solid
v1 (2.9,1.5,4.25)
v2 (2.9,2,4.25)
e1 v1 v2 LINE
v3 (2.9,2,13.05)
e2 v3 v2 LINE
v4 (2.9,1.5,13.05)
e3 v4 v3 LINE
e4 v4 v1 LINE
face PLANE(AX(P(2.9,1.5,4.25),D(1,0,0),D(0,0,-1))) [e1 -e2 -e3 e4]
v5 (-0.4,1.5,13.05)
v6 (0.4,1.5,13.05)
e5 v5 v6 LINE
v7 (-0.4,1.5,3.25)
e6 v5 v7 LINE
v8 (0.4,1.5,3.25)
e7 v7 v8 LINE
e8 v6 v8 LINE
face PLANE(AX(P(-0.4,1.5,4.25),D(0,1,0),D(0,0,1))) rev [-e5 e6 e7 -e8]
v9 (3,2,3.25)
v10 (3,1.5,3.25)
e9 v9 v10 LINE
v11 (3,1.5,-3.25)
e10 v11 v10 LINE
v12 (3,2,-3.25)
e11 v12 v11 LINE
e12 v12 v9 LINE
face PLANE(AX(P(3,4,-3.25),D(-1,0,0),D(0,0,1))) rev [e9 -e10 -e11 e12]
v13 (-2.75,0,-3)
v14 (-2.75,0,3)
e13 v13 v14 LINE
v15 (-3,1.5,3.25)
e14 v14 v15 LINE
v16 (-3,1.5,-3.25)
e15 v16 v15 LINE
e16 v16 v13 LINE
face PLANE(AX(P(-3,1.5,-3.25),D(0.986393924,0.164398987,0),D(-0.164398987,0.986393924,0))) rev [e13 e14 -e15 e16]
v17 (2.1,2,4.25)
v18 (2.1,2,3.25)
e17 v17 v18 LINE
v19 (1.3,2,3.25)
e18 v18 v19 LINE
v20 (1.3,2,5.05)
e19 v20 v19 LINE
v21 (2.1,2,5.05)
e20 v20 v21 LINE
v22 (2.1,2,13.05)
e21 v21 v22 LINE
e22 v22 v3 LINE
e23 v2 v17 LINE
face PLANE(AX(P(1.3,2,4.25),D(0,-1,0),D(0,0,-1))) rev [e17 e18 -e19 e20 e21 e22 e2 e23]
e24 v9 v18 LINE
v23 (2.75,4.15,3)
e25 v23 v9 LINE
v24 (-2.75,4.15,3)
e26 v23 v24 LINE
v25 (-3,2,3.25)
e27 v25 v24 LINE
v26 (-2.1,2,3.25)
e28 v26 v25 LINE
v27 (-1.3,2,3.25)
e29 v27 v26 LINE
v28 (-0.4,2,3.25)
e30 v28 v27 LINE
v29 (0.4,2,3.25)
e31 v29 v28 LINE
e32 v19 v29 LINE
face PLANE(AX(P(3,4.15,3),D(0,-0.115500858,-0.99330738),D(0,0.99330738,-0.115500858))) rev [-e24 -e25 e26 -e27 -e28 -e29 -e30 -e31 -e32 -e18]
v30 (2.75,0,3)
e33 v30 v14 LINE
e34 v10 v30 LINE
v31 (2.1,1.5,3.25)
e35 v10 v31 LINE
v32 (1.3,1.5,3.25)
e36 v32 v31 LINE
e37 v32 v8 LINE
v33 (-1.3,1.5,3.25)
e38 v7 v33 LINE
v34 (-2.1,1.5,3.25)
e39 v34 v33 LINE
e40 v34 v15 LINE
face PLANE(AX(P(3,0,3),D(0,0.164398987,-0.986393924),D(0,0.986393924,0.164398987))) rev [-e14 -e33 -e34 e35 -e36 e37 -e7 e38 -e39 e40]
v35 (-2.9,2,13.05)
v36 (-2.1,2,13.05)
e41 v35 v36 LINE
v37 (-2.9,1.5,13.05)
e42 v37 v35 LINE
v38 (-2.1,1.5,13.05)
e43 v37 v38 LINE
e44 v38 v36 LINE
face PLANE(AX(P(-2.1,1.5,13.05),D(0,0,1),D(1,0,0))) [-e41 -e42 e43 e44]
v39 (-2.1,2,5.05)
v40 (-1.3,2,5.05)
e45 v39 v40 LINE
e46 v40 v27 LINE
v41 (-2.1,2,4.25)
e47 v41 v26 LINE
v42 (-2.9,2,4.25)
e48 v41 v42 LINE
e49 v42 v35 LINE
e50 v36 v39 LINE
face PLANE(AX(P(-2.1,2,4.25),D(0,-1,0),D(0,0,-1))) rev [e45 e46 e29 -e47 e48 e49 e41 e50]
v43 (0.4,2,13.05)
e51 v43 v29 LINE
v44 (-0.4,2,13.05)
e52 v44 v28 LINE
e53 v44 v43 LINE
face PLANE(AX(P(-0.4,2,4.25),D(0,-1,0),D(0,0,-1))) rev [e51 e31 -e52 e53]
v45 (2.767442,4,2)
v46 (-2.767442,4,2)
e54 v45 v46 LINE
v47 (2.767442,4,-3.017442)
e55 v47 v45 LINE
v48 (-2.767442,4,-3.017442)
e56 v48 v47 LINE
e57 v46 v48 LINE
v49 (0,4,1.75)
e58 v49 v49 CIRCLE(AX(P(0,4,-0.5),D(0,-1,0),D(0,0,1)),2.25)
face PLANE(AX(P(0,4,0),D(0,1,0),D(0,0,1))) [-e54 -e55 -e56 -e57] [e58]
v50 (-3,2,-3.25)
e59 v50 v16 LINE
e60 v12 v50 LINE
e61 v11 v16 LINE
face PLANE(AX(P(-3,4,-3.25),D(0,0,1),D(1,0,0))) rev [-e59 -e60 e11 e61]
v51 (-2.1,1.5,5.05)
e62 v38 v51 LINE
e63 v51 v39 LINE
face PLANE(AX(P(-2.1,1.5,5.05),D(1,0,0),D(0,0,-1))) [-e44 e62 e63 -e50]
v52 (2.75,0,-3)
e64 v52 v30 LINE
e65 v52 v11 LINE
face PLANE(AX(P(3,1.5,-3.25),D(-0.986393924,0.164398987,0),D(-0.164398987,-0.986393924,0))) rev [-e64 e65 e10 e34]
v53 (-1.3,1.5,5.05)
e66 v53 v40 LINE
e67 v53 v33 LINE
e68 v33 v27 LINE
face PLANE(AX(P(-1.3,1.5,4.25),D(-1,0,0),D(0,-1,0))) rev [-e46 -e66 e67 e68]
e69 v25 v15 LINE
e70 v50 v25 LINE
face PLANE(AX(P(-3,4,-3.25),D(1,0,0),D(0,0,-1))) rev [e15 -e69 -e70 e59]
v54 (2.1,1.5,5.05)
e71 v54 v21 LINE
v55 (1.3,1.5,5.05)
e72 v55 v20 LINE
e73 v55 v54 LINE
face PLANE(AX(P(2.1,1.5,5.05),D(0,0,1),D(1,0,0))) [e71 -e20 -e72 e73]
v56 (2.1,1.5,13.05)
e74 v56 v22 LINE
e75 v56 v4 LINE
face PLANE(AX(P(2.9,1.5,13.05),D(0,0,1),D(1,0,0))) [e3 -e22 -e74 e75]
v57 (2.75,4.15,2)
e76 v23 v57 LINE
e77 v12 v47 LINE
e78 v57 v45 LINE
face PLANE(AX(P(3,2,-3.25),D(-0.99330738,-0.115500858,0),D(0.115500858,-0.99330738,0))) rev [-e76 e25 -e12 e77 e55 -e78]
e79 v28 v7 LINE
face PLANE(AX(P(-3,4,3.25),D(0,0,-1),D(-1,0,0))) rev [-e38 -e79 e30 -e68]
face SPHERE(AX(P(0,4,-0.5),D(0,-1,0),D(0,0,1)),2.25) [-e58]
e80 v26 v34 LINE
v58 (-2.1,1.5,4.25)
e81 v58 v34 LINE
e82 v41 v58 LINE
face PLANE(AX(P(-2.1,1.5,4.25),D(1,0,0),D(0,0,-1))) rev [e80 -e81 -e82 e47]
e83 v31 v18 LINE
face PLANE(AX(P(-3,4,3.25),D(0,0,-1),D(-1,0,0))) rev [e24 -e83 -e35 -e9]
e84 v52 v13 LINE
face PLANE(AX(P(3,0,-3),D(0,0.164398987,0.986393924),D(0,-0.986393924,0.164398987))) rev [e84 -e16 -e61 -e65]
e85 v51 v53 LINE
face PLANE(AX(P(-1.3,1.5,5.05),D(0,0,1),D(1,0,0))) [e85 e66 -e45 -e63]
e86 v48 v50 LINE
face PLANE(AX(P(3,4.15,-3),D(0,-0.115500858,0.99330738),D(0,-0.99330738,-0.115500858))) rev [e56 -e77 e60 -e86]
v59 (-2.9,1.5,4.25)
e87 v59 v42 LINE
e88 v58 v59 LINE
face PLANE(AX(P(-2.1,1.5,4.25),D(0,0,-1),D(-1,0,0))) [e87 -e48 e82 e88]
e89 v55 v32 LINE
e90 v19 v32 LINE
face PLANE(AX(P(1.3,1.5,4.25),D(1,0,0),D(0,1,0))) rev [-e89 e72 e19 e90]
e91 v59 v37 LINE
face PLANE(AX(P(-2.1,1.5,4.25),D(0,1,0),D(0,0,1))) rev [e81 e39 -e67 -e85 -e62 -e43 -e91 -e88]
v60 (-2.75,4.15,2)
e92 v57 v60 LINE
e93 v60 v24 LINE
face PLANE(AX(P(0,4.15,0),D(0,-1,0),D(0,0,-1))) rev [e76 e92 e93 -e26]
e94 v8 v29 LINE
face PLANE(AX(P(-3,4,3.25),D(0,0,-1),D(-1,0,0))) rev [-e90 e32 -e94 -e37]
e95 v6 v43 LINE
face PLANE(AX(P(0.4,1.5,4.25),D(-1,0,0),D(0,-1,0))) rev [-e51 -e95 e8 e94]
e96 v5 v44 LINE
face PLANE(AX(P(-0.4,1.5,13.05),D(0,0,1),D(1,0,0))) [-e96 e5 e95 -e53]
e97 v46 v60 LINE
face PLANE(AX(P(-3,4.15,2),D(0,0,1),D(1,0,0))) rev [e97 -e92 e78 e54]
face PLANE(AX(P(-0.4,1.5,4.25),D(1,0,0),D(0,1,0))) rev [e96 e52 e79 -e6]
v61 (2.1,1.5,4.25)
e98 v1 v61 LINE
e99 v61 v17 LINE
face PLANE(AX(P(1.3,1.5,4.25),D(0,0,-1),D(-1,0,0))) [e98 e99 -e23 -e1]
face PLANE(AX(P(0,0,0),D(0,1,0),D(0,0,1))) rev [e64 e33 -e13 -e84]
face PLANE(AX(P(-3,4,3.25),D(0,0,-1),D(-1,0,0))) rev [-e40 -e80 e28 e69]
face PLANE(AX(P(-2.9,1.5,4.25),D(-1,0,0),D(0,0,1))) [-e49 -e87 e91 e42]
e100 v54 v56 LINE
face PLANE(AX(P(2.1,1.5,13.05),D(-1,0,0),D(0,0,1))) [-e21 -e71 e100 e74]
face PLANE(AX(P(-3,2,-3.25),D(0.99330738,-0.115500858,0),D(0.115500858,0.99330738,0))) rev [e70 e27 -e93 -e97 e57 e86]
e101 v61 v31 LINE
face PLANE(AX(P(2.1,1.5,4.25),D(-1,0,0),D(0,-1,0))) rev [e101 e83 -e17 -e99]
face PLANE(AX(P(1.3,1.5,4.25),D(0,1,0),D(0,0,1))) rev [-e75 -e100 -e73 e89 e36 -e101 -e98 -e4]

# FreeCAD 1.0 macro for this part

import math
import FreeCAD as App
import Part
import Sketcher

V = App.Vector

doc = App.newDocument("Part")
body = doc.addObject("PartDesign::Body", "Body")

# Sketch on XZ plane
sketch1 = body.newObject("Sketcher::SketchObject", "Sketch")
sketch1.AttachmentSupport = (doc.getObject("XZ_Plane"), [""])
sketch1.MapMode = "FlatFace"
sketch1.addGeometry([
    Part.LineSegment(V(-3, -3, 0), V(-3, 3, 0)),
    Part.LineSegment(V(-3, 3, 0), V(3, 3, 0)),
    Part.LineSegment(V(3, 3, 0), V(3, -3, 0)),
    Part.LineSegment(V(3, -3, 0), V(-3, -3, 0)),
], False)
sketch1.addConstraint([
    Sketcher.Constraint("Coincident", 0, 2, 1, 1),
    Sketcher.Constraint("Coincident", 1, 2, 2, 1),
    Sketcher.Constraint("Coincident", 2, 2, 3, 1),
    Sketcher.Constraint("Coincident", 3, 2, 0, 1),
    Sketcher.Constraint("Vertical", 0),
    Sketcher.Constraint("Horizontal", 1),
    Sketcher.Constraint("Vertical", 2),
    Sketcher.Constraint("Horizontal", 3),
    Sketcher.Constraint("Symmetric", 0, 2, 2, 2, -1, 1),
    Sketcher.Constraint("DistanceX", 1, 1, 1, 2, 6.0),
    Sketcher.Constraint("DistanceY", 0, 1, 0, 2, 6.5),
])
pad1 = body.newObject("PartDesign::Pad", "Pad")
pad1.Profile = sketch1
pad1.Length = 4
pad1.Reversed = True

# Sketch on XY plane
sketch2 = body.newObject("Sketcher::SketchObject", "Sketch001")
sketch2.AttachmentSupport = (doc.getObject("XY_Plane"), [""])
sketch2.MapMode = "FlatFace"
sketch2.AttachmentOffset = App.Placement(V(0, 0, 3.25), App.Rotation())
sketch2.addGeometry([
    Part.LineSegment(V(-2.1, 2, 0), V(-2.1, 1.5, 0)),  # 0
    Part.LineSegment(V(-2.1, 1.5, 0), V(-1.3, 1.5, 0)),  # 1
    Part.LineSegment(V(-1.3, 1.5, 0), V(-1.3, 2, 0)),  # 2
    Part.LineSegment(V(-1.3, 2, 0), V(-2.1, 2, 0)),  # 3
    Part.LineSegment(V(-0.4, 2, 0), V(-0.4, 1.5, 0)),  # 4
    Part.LineSegment(V(-0.4, 1.5, 0), V(0.4, 1.5, 0)),  # 5
    Part.LineSegment(V(0.4, 1.5, 0), V(0.4, 2, 0)),  # 6
    Part.LineSegment(V(0.4, 2, 0), V(-0.4, 2, 0)),  # 7
    Part.LineSegment(V(1.3, 2, 0), V(1.3, 1.5, 0)),  # 8
    Part.LineSegment(V(1.3, 1.5, 0), V(2.1, 1.5, 0)),  # 9
    Part.LineSegment(V(2.1, 1.5, 0), V(2.1, 2, 0)),  # 10
    Part.LineSegment(V(2.1, 2, 0), V(1.3, 2, 0)),  # 11
], False)
sketch2.addConstraint([
    Sketcher.Constraint("Coincident", 0, 2, 1, 1),
    Sketcher.Constraint("Coincident", 1, 2, 2, 1),
    Sketcher.Constraint("Coincident", 2, 2, 3, 1),
    Sketcher.Constraint("Coincident", 3, 2, 0, 1),
    Sketcher.Constraint("Coincident", 4, 2, 5, 1),
    Sketcher.Constraint("Coincident", 5, 2, 6, 1),
    Sketcher.Constraint("Coincident", 6, 2, 7, 1),
    Sketcher.Constraint("Coincident", 7, 2, 4, 1),
    Sketcher.Constraint("Coincident", 8, 2, 9, 1),
    Sketcher.Constraint("Coincident", 9, 2, 10, 1),
    Sketcher.Constraint("Coincident", 10, 2, 11, 1),
    Sketcher.Constraint("Coincident", 11, 2, 8, 1),
    Sketcher.Constraint("Vertical", 0),
    Sketcher.Constraint("Horizontal", 1),
    Sketcher.Constraint("Vertical", 2),
    Sketcher.Constraint("Horizontal", 3),
    Sketcher.Constraint("Vertical", 4),
    Sketcher.Constraint("Horizontal", 5),
    Sketcher.Constraint("Vertical", 6),
    Sketcher.Constraint("Horizontal", 7),
    Sketcher.Constraint("Vertical", 8),
    Sketcher.Constraint("Horizontal", 9),
    Sketcher.Constraint("Vertical", 10),
    Sketcher.Constraint("Horizontal", 11),
    Sketcher.Constraint("Symmetric", 1, 2, 8, 2, -2),
    Sketcher.Constraint("Symmetric", 3, 2, 10, 2, -2),
    Sketcher.Constraint("Horizontal", 1, 2, 4, 2),
    Sketcher.Constraint("Horizontal", 3, 2, 6, 2),
    Sketcher.Constraint("Equal", 3, 5),
    Sketcher.Constraint("DistanceX", 1, 1, 1, 2, 0.8),
    Sketcher.Constraint("DistanceY", 0, 2, 0, 1, 0.5),
    Sketcher.Constraint("DistanceY", -1, 1, 2, 2, 2.0),
    Sketcher.Constraint("DistanceX", 0, 2, -1, 1, 2.1),
    Sketcher.Constraint("DistanceX", 4, 2, -1, 1, 0.4),
])
pad2 = body.newObject("PartDesign::Pad", "Pad001")
pad2.Profile = sketch2
pad2.Length = 1

# Sketch on XZ plane
sketch3 = body.newObject("Sketcher::SketchObject", "Sketch002")
sketch3.AttachmentSupport = (doc.getObject("XZ_Plane"), [""])
sketch3.MapMode = "FlatFace"
sketch3.AttachmentOffset = App.Placement(V(0, 0, -2), App.Rotation())
sketch3.addGeometry([
    Part.LineSegment(V(-1.3, 5, 0), V(-1.3, 4.2, 0)),  # 0
    Part.LineSegment(V(-1.3, 4.2, 0), V(-2.9, 4.2, 0)),  # 1
    Part.LineSegment(V(-2.9, 4.2, 0), V(-2.9, 13.1, 0)),  # 2
    Part.LineSegment(V(-2.9, 13.1, 0), V(-2.1, 13.1, 0)),  # 3
    Part.LineSegment(V(-2.1, 13.1, 0), V(-2.1, 5, 0)),  # 4
    Part.LineSegment(V(-2.1, 5, 0), V(-1.3, 5, 0)),  # 5
    Part.LineSegment(V(-0.4, 4.2, 0), V(-0.4, 13.1, 0)),  # 6
    Part.LineSegment(V(-0.4, 13.1, 0), V(0.4, 13.1, 0)),  # 7
    Part.LineSegment(V(0.4, 13.1, 0), V(0.4, 4.2, 0)),  # 8
    Part.LineSegment(V(0.4, 4.2, 0), V(-0.4, 4.2, 0)),  # 9
    Part.LineSegment(V(2.9, 4.2, 0), V(1.3, 4.2, 0)),  # 10
    Part.LineSegment(V(1.3, 4.2, 0), V(1.3, 5, 0)),  # 11
    Part.LineSegment(V(1.3, 5, 0), V(2.1, 5, 0)),  # 12
    Part.LineSegment(V(2.1, 5, 0), V(2.1, 13.1, 0)),  # 13
    Part.LineSegment(V(2.1, 13.1, 0), V(2.9, 13.1, 0)),  # 14
    Part.LineSegment(V(2.9, 13.1, 0), V(2.9, 4.2, 0)),  # 15
], False)
sketch3.addConstraint([
    Sketcher.Constraint("Coincident", 0, 2, 1, 1),
    Sketcher.Constraint("Coincident", 1, 2, 2, 1),
    Sketcher.Constraint("Coincident", 2, 2, 3, 1),
    Sketcher.Constraint("Coincident", 3, 2, 4, 1),
    Sketcher.Constraint("Coincident", 4, 2, 5, 1),
    Sketcher.Constraint("Coincident", 5, 2, 0, 1),
    Sketcher.Constraint("Coincident", 6, 2, 7, 1),
    Sketcher.Constraint("Coincident", 7, 2, 8, 1),
    Sketcher.Constraint("Coincident", 8, 2, 9, 1),
    Sketcher.Constraint("Coincident", 9, 2, 6, 1),
    Sketcher.Constraint("Coincident", 10, 2, 11, 1),
    Sketcher.Constraint("Coincident", 11, 2, 12, 1),
    Sketcher.Constraint("Coincident", 12, 2, 13, 1),
    Sketcher.Constraint("Coincident", 13, 2, 14, 1),
    Sketcher.Constraint("Coincident", 14, 2, 15, 1),
    Sketcher.Constraint("Coincident", 15, 2, 10, 1),
    Sketcher.Constraint("Vertical", 0),
    Sketcher.Constraint("Horizontal", 1),
    Sketcher.Constraint("Vertical", 2),
    Sketcher.Constraint("Horizontal", 3),
    Sketcher.Constraint("Vertical", 4),
    Sketcher.Constraint("Horizontal", 5),
    Sketcher.Constraint("Vertical", 6),
    Sketcher.Constraint("Horizontal", 7),
    Sketcher.Constraint("Vertical", 8),
    Sketcher.Constraint("Horizontal", 9),
    Sketcher.Constraint("Horizontal", 10),
    Sketcher.Constraint("Vertical", 11),
    Sketcher.Constraint("Horizontal", 12),
    Sketcher.Constraint("Vertical", 13),
    Sketcher.Constraint("Horizontal", 14),
    Sketcher.Constraint("Vertical", 15),
    Sketcher.Constraint("Symmetric", 0, 2, 10, 2, -2),
    Sketcher.Constraint("Symmetric", 4, 2, 12, 2, -2),
    Sketcher.Constraint("Symmetric", 2, 2, 14, 2, -2),
    Sketcher.Constraint("Horizontal", 3, 2, 6, 2),
    Sketcher.Constraint("Horizontal", 1, 2, 8, 2),
    Sketcher.Constraint("Equal", 3, 5),
    Sketcher.Constraint("Equal", 5, 7),
    Sketcher.Constraint("Equal", 14, 0),
    Sketcher.Constraint("DistanceY", 4, 2, 4, 1, 8.0),
    Sketcher.Constraint("DistanceX", 1, 2, 1, 1, 1.6),
    Sketcher.Constraint("DistanceX", 2, 2, 13, 2, 5.0),
    Sketcher.Constraint("DistanceX", 6, 2, -1, 1, 0.4),
    Sketcher.Constraint("DistanceY", -1, 1, 0, 2, 4.25),
])
pad3 = body.newObject("PartDesign::Pad", "Pad002")
pad3.Profile = sketch3
pad3.Length = 0.5

# Sketch on XZ plane
sketch4 = body.newObject("Sketcher::SketchObject", "Sketch003")
sketch4.AttachmentSupport = (doc.getObject("XZ_Plane"), [""])
sketch4.MapMode = "FlatFace"
sketch4.AttachmentOffset = App.Placement(V(0, 0, -4), App.Rotation())
sketch4.addGeometry([
    Part.LineSegment(V(0, 1.8, 0), V(0, -2.8, 0)),
    Part.ArcOfCircle(Part.Circle(V(0, -0.5, 0), V(0, 0, 1), 2.2), math.radians(90), math.radians(270)),
], False)
sketch4.addConstraint([
    Sketcher.Constraint("Coincident", 0, 1, 1, 1),
    Sketcher.Constraint("Coincident", 1, 2, 0, 2),
    Sketcher.Constraint("Vertical", 0),
    Sketcher.Constraint("PointOnObject", 1, 3, -2),
    Sketcher.Constraint("PointOnObject", 0, 1, -2),
    Sketcher.Constraint("Radius", 1, 2.25),
    Sketcher.Constraint("DistanceY", 1, 3, -1, 1, 0.5),
])
revolution = body.newObject("PartDesign::Revolution", "Revolution")
revolution.Profile = sketch4
revolution.ReferenceAxis = (sketch4, ["V_Axis"])
revolution.Angle = 180
revolution.Reversed = True

# Sketch on XZ plane
sketch5 = body.newObject("Sketcher::SketchObject", "Sketch004")
sketch5.AttachmentSupport = (doc.getObject("XZ_Plane"), [""])
sketch5.MapMode = "FlatFace"
sketch5.AttachmentOffset = App.Placement(V(0, 0, -4), App.Rotation())
sketch5.addGeometry([
    Part.LineSegment(V(-3, 2, 0), V(-3, 3.2, 0)),
    Part.LineSegment(V(-3, 3.2, 0), V(3, 3.2, 0)),
    Part.LineSegment(V(3, 3.2, 0), V(3, 2, 0)),
    Part.LineSegment(V(3, 2, 0), V(-3, 2, 0)),
], False)
sketch5.addConstraint([
    Sketcher.Constraint("Coincident", 0, 2, 1, 1),
    Sketcher.Constraint("Coincident", 1, 2, 2, 1),
    Sketcher.Constraint("Coincident", 2, 2, 3, 1),
    Sketcher.Constraint("Coincident", 3, 2, 0, 1),
    Sketcher.Constraint("Vertical", 0),
    Sketcher.Constraint("Horizontal", 1),
    Sketcher.Constraint("Vertical", 2),
    Sketcher.Constraint("Horizontal", 3),
    Sketcher.Constraint("DistanceX", 1, 1, 1, 2, 6.0),
    Sketcher.Constraint("DistanceX", 0, 2, -1, 1, 3.0),
    Sketcher.Constraint("DistanceY", -1, 1, 2, 2, 2.0),
    Sketcher.Constraint("DistanceY", 0, 1, 0, 2, 1.25),
])
pad4 = body.newObject("PartDesign::Pad", "Pad003")
pad4.Profile = sketch5
pad4.Length = 0.15
pad4.Reversed = True

# Sketch on XY plane
sketch6 = body.newObject("Sketcher::SketchObject", "Sketch005")
sketch6.AttachmentSupport = (doc.getObject("XY_Plane"), [""])
sketch6.MapMode = "FlatFace"
sketch6.AttachmentOffset = App.Placement(V(0, 0, 3.25), App.Rotation())
sketch6.addGeometry([
    Part.LineSegment(V(-3, 2, 0), V(-2.75, 4.15, 0)),  # 0
    Part.LineSegment(V(-2.75, 4.15, 0), V(-3, 4.15, 0)),  # 1
    Part.LineSegment(V(-3, 4.15, 0), V(-3, 2, 0)),  # 2
    Part.LineSegment(V(-2.75, 0, 0), V(-3, 1.5, 0)),  # 3
    Part.LineSegment(V(-3, 1.5, 0), V(-3, 0, 0)),  # 4
    Part.LineSegment(V(-3, 0, 0), V(-2.75, 0, 0)),  # 5
    Part.LineSegment(V(3, 0, 0), V(3, 1.5, 0)),  # 6
    Part.LineSegment(V(3, 1.5, 0), V(2.75, 0, 0)),  # 7
    Part.LineSegment(V(2.75, 0, 0), V(3, 0, 0)),  # 8
    Part.LineSegment(V(3, 2, 0), V(3, 4.15, 0)),  # 9
    Part.LineSegment(V(3, 4.15, 0), V(2.75, 4.15, 0)),  # 10
    Part.LineSegment(V(2.75, 4.15, 0), V(3, 2, 0)),  # 11
], False)
sketch6.addConstraint([
    Sketcher.Constraint("Coincident", 0, 2, 1, 1),
    Sketcher.Constraint("Coincident", 1, 2, 2, 1),
    Sketcher.Constraint("Coincident", 2, 2, 0, 1),
    Sketcher.Constraint("Coincident", 3, 2, 4, 1),
    Sketcher.Constraint("Coincident", 4, 2, 5, 1),
    Sketcher.Constraint("Coincident", 5, 2, 3, 1),
    Sketcher.Constraint("Coincident", 6, 2, 7, 1),
    Sketcher.Constraint("Coincident", 7, 2, 8, 1),
    Sketcher.Constraint("Coincident", 8, 2, 6, 1),
    Sketcher.Constraint("Coincident", 9, 2, 10, 1),
    Sketcher.Constraint("Coincident", 10, 2, 11, 1),
    Sketcher.Constraint("Coincident", 11, 2, 9, 1),
    Sketcher.Constraint("Horizontal", 1),
    Sketcher.Constraint("Vertical", 2),
    Sketcher.Constraint("Vertical", 4),
    Sketcher.Constraint("Horizontal", 5),
    Sketcher.Constraint("Vertical", 6),
    Sketcher.Constraint("Horizontal", 8),
    Sketcher.Constraint("Vertical", 9),
    Sketcher.Constraint("Horizontal", 10),
    Sketcher.Constraint("Symmetric", 5, 2, 7, 2, -1, 1),
    Sketcher.Constraint("Symmetric", 3, 2, 6, 2, -2),
    Sketcher.Constraint("Symmetric", 1, 2, 9, 2, -2),
    Sketcher.Constraint("PointOnObject", 4, 2, -1),
    Sketcher.Constraint("Horizontal", 2, 2, 11, 2),
    Sketcher.Constraint("Vertical", 2, 2, 3, 2),
    Sketcher.Constraint("Vertical", 0, 2, 5, 2),
    Sketcher.Constraint("Vertical", 7, 2, 10, 2),
    Sketcher.Constraint("DistanceY", 4, 2, 4, 1, 1.5),
    Sketcher.Constraint("DistanceX", 1, 2, -1, 1, 3.0),
    Sketcher.Constraint("DistanceY", -1, 1, 2, 2, 2.0),
    Sketcher.Constraint("DistanceX", 1, 2, 1, 1, 0.25),
    Sketcher.Constraint("DistanceY", 2, 2, 2, 1, 2.15),
])
pocket1 = body.newObject("PartDesign::Pocket", "Pocket")
pocket1.Profile = sketch6
pocket1.Type = "ThroughAll"

# Sketch on YZ plane
sketch7 = body.newObject("Sketcher::SketchObject", "Sketch006")
sketch7.AttachmentSupport = (doc.getObject("YZ_Plane"), [""])
sketch7.MapMode = "FlatFace"
sketch7.AttachmentOffset = App.Placement(V(0, 0, -3), App.Rotation())
sketch7.addGeometry([
    Part.LineSegment(V(2, 3.25, 0), V(4.15, 3.25, 0)),  # 0
    Part.LineSegment(V(4.15, 3.25, 0), V(4.15, 3, 0)),  # 1
    Part.LineSegment(V(4.15, 3, 0), V(2, 3.25, 0)),  # 2
    Part.LineSegment(V(0, 3.25, 0), V(1.5, 3.25, 0)),  # 3
    Part.LineSegment(V(1.5, 3.25, 0), V(0, 3, 0)),  # 4
    Part.LineSegment(V(0, 3, 0), V(0, 3.25, 0)),  # 5
    Part.LineSegment(V(0, -3, 0), V(1.5, -3.25, 0)),  # 6
    Part.LineSegment(V(1.5, -3.25, 0), V(0, -3.25, 0)),  # 7
    Part.LineSegment(V(0, -3.25, 0), V(0, -3, 0)),  # 8
    Part.LineSegment(V(2, -3.25, 0), V(4.15, -3, 0)),  # 9
    Part.LineSegment(V(4.15, -3, 0), V(4.15, -3.25, 0)),  # 10
    Part.LineSegment(V(4.15, -3.25, 0), V(2, -3.25, 0)),  # 11
], False)
sketch7.addConstraint([
    Sketcher.Constraint("Coincident", 0, 2, 1, 1),
    Sketcher.Constraint("Coincident", 1, 2, 2, 1),
    Sketcher.Constraint("Coincident", 2, 2, 0, 1),
    Sketcher.Constraint("Coincident", 3, 2, 4, 1),
    Sketcher.Constraint("Coincident", 4, 2, 5, 1),
    Sketcher.Constraint("Coincident", 5, 2, 3, 1),
    Sketcher.Constraint("Coincident", 6, 2, 7, 1),
    Sketcher.Constraint("Coincident", 7, 2, 8, 1),
    Sketcher.Constraint("Coincident", 8, 2, 6, 1),
    Sketcher.Constraint("Coincident", 9, 2, 10, 1),
    Sketcher.Constraint("Coincident", 10, 2, 11, 1),
    Sketcher.Constraint("Coincident", 11, 2, 9, 1),
    Sketcher.Constraint("Horizontal", 0),
    Sketcher.Constraint("Vertical", 1),
    Sketcher.Constraint("Horizontal", 3),
    Sketcher.Constraint("Vertical", 5),
    Sketcher.Constraint("Horizontal", 7),
    Sketcher.Constraint("Vertical", 8),
    Sketcher.Constraint("Vertical", 10),
    Sketcher.Constraint("Horizontal", 11),
    Sketcher.Constraint("Symmetric", 5, 2, 7, 2, -1, 1),
    Sketcher.Constraint("Symmetric", 4, 2, 8, 2, -1),
    Sketcher.Constraint("Symmetric", 1, 2, 9, 2, -1),
    Sketcher.Constraint("Symmetric", 2, 2, 11, 2, -1),
    Sketcher.Constraint("Horizontal", 2, 2, 3, 2),
    Sketcher.Constraint("Horizontal", 1, 2, 4, 2),
    Sketcher.Constraint("Vertical", 3, 2, 6, 2),
    Sketcher.Constraint("DistanceX", 3, 1, 3, 2, 1.5),
    Sketcher.Constraint("DistanceY", -1, 1, 1, 2, 3.0),
    Sketcher.Constraint("DistanceX", -1, 1, 2, 2, 2.0),
    Sketcher.Constraint("DistanceX", 0, 1, 0, 2, 2.15),
    Sketcher.Constraint("DistanceY", 1, 2, 1, 1, 0.25),
])
pocket2 = body.newObject("PartDesign::Pocket", "Pocket001")
pocket2.Profile = sketch7
pocket2.Type = "ThroughAll"
pocket2.Reversed = True

doc.recompute()
